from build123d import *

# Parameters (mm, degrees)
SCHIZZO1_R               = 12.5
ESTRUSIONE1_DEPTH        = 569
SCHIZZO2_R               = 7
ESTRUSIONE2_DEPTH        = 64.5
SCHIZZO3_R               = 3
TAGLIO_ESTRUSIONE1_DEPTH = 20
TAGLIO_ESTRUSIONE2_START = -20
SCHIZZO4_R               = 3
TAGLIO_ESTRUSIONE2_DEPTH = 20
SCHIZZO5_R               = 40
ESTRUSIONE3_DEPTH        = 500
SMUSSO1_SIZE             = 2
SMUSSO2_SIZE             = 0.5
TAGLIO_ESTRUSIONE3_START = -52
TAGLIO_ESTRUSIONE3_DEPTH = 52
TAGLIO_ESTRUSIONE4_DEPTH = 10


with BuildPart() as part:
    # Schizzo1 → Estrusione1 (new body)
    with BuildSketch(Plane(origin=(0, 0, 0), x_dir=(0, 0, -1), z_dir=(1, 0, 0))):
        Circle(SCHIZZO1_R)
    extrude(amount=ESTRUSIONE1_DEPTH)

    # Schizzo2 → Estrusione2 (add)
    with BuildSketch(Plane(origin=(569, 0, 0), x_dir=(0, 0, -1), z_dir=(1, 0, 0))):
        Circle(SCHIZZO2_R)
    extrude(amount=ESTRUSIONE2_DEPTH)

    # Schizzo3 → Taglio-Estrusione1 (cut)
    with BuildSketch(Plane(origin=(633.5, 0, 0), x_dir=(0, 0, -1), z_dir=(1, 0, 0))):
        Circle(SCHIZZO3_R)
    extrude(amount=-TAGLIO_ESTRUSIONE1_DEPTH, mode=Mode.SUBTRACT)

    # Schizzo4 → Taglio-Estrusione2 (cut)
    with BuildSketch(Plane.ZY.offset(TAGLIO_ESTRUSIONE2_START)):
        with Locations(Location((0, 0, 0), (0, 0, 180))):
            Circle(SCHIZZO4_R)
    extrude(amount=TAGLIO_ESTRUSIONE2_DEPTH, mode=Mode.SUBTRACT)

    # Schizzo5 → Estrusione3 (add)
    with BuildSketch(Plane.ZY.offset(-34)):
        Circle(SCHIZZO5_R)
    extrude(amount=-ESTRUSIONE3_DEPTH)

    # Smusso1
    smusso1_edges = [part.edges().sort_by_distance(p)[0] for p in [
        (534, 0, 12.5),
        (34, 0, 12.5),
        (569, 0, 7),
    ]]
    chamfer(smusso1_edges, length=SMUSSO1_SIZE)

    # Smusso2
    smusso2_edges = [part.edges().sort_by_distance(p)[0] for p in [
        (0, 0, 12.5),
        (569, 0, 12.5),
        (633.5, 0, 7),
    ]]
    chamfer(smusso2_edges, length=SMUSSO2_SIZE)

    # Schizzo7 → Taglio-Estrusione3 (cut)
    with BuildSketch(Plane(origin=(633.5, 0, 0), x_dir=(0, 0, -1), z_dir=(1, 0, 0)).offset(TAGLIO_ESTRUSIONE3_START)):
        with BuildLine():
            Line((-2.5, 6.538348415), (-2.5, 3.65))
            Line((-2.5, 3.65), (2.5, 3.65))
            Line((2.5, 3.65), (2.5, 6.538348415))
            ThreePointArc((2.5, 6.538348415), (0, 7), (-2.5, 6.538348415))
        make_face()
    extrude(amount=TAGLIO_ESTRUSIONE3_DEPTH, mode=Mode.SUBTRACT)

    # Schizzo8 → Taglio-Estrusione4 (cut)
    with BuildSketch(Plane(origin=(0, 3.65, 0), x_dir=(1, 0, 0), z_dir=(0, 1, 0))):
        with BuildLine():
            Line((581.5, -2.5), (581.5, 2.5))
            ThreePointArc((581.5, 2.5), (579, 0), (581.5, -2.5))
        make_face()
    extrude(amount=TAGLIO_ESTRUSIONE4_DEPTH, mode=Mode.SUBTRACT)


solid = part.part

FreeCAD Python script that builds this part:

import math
import FreeCAD as App
import Part
import Sketcher
from FreeCAD import Vector


def edges_at(feature, points):
    """Names of the edges that pass closest to the given points."""
    edges = feature.Shape.Edges
    near = lambda p: min(range(len(edges)), key=lambda i: edges[i].distToShape(Part.Vertex(*p))[0])
    return sorted({f"Edge{near(p) + 1}" for p in points})

doc = App.newDocument("Part")
body = doc.addObject("PartDesign::Body", "Body")

sketch1 = doc.addObject("Sketcher::SketchObject", "Sketch")
body.addObject(sketch1)
sketch1.AttachmentSupport = (doc.YZ_Plane, [""])
sketch1.MapMode = "FlatFace"
sketch1.addGeometry(Part.Circle(Vector(0, 0, 0), Vector(0, 0, 1), 12), False)
sketch1.addConstraint(Sketcher.Constraint("Coincident", 0, 3, -1, 1))
sketch1.addConstraint(Sketcher.Constraint("Diameter", 0, 25.0))
pad1 = doc.addObject("PartDesign::Pad", "Pad")
body.addObject(pad1)
pad1.Profile = sketch1
pad1.Length = 569

sketch2 = doc.addObject("Sketcher::SketchObject", "Sketch001")
body.addObject(sketch2)
sketch2.AttachmentSupport = (doc.YZ_Plane, [""])
sketch2.MapMode = "FlatFace"
sketch2.AttachmentOffset = App.Placement(Vector(0, 0, 569), App.Rotation())
sketch2.addGeometry(Part.Circle(Vector(0, 0, 0), Vector(0, 0, 1), 7), False)
sketch2.addConstraint(Sketcher.Constraint("Coincident", 0, 3, -1, 1))
sketch2.addConstraint(Sketcher.Constraint("Diameter", 0, 14.0))
pad2 = doc.addObject("PartDesign::Pad", "Pad001")
body.addObject(pad2)
pad2.Profile = sketch2
pad2.Length = 64.5

sketch3 = doc.addObject("Sketcher::SketchObject", "Sketch002")
body.addObject(sketch3)
sketch3.AttachmentSupport = (doc.YZ_Plane, [""])
sketch3.MapMode = "FlatFace"
sketch3.AttachmentOffset = App.Placement(Vector(0, 0, 633.5), App.Rotation())
sketch3.addGeometry(Part.Circle(Vector(0, 0, 0), Vector(0, 0, 1), 3), False)
sketch3.addConstraint(Sketcher.Constraint("Coincident", 0, 3, -1, 1))
sketch3.addConstraint(Sketcher.Constraint("Diameter", 0, 6.0))
pocket1 = doc.addObject("PartDesign::Pocket", "Pocket")
body.addObject(pocket1)
pocket1.Profile = sketch3
pocket1.Length = 20

sketch4 = doc.addObject("Sketcher::SketchObject", "Sketch003")
body.addObject(sketch4)
sketch4.AttachmentSupport = (doc.YZ_Plane, [""])
sketch4.MapMode = "FlatFace"
sketch4.AttachmentOffset = App.Placement(Vector(0, 0, 20), App.Rotation())
sketch4.addGeometry(Part.Circle(Vector(0, 0, 0), Vector(0, 0, 1), 3), False)
sketch4.addConstraint(Sketcher.Constraint("Coincident", 0, 3, -1, 1))
sketch4.addConstraint(Sketcher.Constraint("Diameter", 0, 6.0))
pocket2 = doc.addObject("PartDesign::Pocket", "Pocket001")
body.addObject(pocket2)
pocket2.Profile = sketch4
pocket2.Length = 20

sketch5 = doc.addObject("Sketcher::SketchObject", "Sketch004")
body.addObject(sketch5)
sketch5.AttachmentSupport = (doc.YZ_Plane, [""])
sketch5.MapMode = "FlatFace"
sketch5.AttachmentOffset = App.Placement(Vector(0, 0, 34), App.Rotation())
sketch5.addGeometry(Part.Circle(Vector(0, 0, 0), Vector(0, 0, 1), 40), False)
sketch5.addConstraint(Sketcher.Constraint("Coincident", 0, 3, -1, 1))
sketch5.addConstraint(Sketcher.Constraint("Diameter", 0, 80.0))
pad3 = doc.addObject("PartDesign::Pad", "Pad002")
body.addObject(pad3)
pad3.Profile = sketch5
pad3.Length = 500
doc.recompute()

chamfer = doc.addObject("PartDesign::Chamfer", "Chamfer")
body.addObject(chamfer)
chamfer.Base = (pad3, edges_at(pad3, [(534, 0, 12.5), (34, 0, 12.5), (569, 0, 7)]))
chamfer.Size = 2
doc.recompute()

chamfer2 = doc.addObject("PartDesign::Chamfer", "Chamfer001")
body.addObject(chamfer2)
chamfer2.Base = (chamfer, edges_at(chamfer, [(0, 0, 12.5), (569, 0, 12.5), (633.5, 0, 7)]))
chamfer2.Size = 0.5

sketch6 = doc.addObject("Sketcher::SketchObject", "Sketch005")
body.addObject(sketch6)
sketch6.AttachmentSupport = (doc.YZ_Plane, [""])
sketch6.MapMode = "FlatFace"
sketch6.AttachmentOffset = App.Placement(Vector(0, 0, 581.5), App.Rotation())
sketch6.addGeometry(Part.LineSegment(Vector(6.5, 2.5, 0), Vector(3.6, 2.5, 0)), False)
sketch6.addGeometry(Part.LineSegment(Vector(3.6, 2.5, 0), Vector(3.6, -2.5, 0)), False)
sketch6.addGeometry(Part.LineSegment(Vector(3.6, -2.5, 0), Vector(6.5, -2.5, 0)), False)
sketch6.addGeometry(Part.ArcOfCircle(Part.Circle(Vector(0, 0, 0), Vector(0, 0, 1), 7), math.radians(-21), math.radians(21)), False)
sketch6.addConstraint(Sketcher.Constraint("Coincident", 0, 2, 1, 1))
sketch6.addConstraint(Sketcher.Constraint("Coincident", 1, 2, 2, 1))
sketch6.addConstraint(Sketcher.Constraint("Coincident", 2, 2, 3, 1))
sketch6.addConstraint(Sketcher.Constraint("Coincident", 3, 2, 0, 1))
sketch6.addConstraint(Sketcher.Constraint("Horizontal", 0))
sketch6.addConstraint(Sketcher.Constraint("Vertical", 1))
sketch6.addConstraint(Sketcher.Constraint("Horizontal", 2))
sketch6.addConstraint(Sketcher.Constraint("Coincident", 3, 3, -1, 1))
sketch6.addConstraint(Sketcher.Constraint("Vertical", 2, 2, 3, 2))
sketch6.addConstraint(Sketcher.Constraint("Radius", 3, 7.0))
sketch6.addConstraint(Sketcher.Constraint("DistanceY", 1, 2, 1, 1, 5.0))
sketch6.addConstraint(Sketcher.Constraint("DistanceX", -1, 1, 0, 2, 3.65))
pocket3 = doc.addObject("PartDesign::Pocket", "Pocket002")
body.addObject(pocket3)
pocket3.Profile = sketch6
pocket3.Length = 52
pocket3.Reversed = True

sketch7 = doc.addObject("Sketcher::SketchObject", "Sketch006")
body.addObject(sketch7)
sketch7.AttachmentSupport = (doc.XZ_Plane, [""])
sketch7.MapMode = "FlatFace"
sketch7.AttachmentOffset = App.Placement(Vector(0, 0, -3.65), App.Rotation())
sketch7.addGeometry(Part.LineSegment(Vector(581.5, 2.5, 0), Vector(581.5, -2.5, 0)), False)
sketch7.addGeometry(Part.ArcOfCircle(Part.Circle(Vector(581.5, 0, 0), Vector(0, 0, 1), 2.5), math.radians(90), math.radians(270)), False)
sketch7.addConstraint(Sketcher.Constraint("Coincident", 0, 1, 1, 1))
sketch7.addConstraint(Sketcher.Constraint("Coincident", 1, 2, 0, 2))
sketch7.addConstraint(Sketcher.Constraint("Vertical", 0))
sketch7.addConstraint(Sketcher.Constraint("PointOnObject", 1, 3, -1))
sketch7.addConstraint(Sketcher.Constraint("Vertical", 1, 3, 0, 1))
sketch7.addConstraint(Sketcher.Constraint("Radius", 1, 2.5))
sketch7.addConstraint(Sketcher.Constraint("DistanceX", -1, 1, 1, 3, 581.5))
pocket4 = doc.addObject("PartDesign::Pocket", "Pocket003")
body.addObject(pocket4)
pocket4.Profile = sketch7
pocket4.Length = 10

doc.recompute()
